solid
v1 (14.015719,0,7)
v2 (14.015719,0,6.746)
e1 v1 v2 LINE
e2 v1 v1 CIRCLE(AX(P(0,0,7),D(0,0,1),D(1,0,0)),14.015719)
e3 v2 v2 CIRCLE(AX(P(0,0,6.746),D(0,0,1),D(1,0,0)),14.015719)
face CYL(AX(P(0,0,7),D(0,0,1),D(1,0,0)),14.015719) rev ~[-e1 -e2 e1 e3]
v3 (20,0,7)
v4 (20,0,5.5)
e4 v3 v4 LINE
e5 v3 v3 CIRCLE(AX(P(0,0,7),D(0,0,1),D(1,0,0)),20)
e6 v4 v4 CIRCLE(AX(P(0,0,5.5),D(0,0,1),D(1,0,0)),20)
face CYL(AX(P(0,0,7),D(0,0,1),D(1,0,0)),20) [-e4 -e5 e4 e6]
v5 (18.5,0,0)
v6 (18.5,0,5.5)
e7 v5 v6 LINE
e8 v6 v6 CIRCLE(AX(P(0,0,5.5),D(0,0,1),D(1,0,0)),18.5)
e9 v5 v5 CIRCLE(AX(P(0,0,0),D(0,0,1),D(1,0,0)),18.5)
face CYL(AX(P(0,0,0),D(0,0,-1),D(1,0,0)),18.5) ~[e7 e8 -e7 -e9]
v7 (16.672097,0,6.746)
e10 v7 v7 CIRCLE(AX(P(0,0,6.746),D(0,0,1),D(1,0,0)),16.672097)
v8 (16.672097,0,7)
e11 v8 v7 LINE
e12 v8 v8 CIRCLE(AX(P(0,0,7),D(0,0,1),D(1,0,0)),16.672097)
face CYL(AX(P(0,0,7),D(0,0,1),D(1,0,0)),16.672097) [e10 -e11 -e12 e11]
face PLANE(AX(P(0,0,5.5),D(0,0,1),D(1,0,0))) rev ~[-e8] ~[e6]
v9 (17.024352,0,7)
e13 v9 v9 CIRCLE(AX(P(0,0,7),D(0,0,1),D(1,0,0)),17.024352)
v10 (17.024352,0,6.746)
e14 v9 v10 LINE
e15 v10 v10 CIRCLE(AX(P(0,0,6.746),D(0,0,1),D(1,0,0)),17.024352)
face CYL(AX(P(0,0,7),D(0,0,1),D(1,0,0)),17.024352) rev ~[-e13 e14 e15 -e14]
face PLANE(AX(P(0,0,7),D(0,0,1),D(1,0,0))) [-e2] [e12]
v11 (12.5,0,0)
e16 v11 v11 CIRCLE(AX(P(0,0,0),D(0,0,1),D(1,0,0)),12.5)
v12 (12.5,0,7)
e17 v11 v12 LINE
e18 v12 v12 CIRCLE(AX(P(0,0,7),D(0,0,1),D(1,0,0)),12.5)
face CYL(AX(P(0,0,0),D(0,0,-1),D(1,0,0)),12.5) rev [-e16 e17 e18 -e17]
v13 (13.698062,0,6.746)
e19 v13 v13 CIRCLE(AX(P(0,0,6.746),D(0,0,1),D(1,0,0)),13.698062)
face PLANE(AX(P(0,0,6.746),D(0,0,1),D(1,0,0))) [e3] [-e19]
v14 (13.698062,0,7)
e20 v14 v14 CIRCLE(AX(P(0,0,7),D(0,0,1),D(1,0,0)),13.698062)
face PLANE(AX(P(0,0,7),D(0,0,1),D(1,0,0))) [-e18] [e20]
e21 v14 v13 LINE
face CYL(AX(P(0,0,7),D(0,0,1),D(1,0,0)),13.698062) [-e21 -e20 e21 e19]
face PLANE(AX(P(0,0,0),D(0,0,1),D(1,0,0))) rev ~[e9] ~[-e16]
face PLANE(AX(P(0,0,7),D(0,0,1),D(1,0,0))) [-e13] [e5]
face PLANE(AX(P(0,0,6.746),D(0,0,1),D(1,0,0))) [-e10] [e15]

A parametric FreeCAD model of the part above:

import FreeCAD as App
import Part
import Sketcher
from FreeCAD import Vector

doc = App.newDocument("Part")
body = doc.addObject("PartDesign::Body", "Body")

sketch1 = body.newObject("Sketcher::SketchObject", "Sketch")
sketch1.AttachmentSupport = (doc.getObject("XY_Plane"), [""])
sketch1.MapMode = "FlatFace"
sketch1.addGeometry(Part.Circle(Vector(0, 0, 0), Vector(0, 0, 1), 18), False)
sketch1.addGeometry(Part.Circle(Vector(0, 0, 0), Vector(0, 0, 1), 12), False)
sketch1.addConstraint(Sketcher.Constraint("Coincident", 0, 3, -1, 1))
sketch1.addConstraint(Sketcher.Constraint("Coincident", 1, 3, -1, 1))
sketch1.addConstraint(Sketcher.Constraint("Diameter", 0, 37.0))
sketch1.addConstraint(Sketcher.Constraint("Diameter", 1, 25.0))
pad1 = body.newObject("PartDesign::Pad", "Pad")
pad1.Profile = sketch1
pad1.Length = 7

sketch2 = body.newObject("Sketcher::SketchObject", "Sketch001")
sketch2.AttachmentSupport = (doc.getObject("XY_Plane"), [""])
sketch2.MapMode = "FlatFace"
sketch2.AttachmentOffset = App.Placement(Vector(0, 0, 7), App.Rotation())
sketch2.addGeometry(Part.Circle(Vector(0, 0, 0), Vector(0, 0, 1), 14), False)
sketch2.addGeometry(Part.Circle(Vector(0, 0, 0), Vector(0, 0, 1), 14), False)
sketch2.addConstraint(Sketcher.Constraint("Coincident", 0, 3, -1, 1))
sketch2.addConstraint(Sketcher.Constraint("Coincident", 1, 3, -1, 1))
sketch2.addConstraint(Sketcher.Constraint("Diameter", 0, 28.031438))
sketch2.addConstraint(Sketcher.Constraint("Diameter", 1, 27.396124))
pocket1 = body.newObject("PartDesign::Pocket", "Pocket")
pocket1.Profile = sketch2
pocket1.Length = 0.254

sketch3 = body.newObject("Sketcher::SketchObject", "Sketch002")
sketch3.AttachmentSupport = (doc.getObject("XY_Plane"), [""])
sketch3.MapMode = "FlatFace"
sketch3.AttachmentOffset = App.Placement(Vector(0, 0, 7), App.Rotation())
sketch3.addGeometry(Part.Circle(Vector(0, 0, 0), Vector(0, 0, 1), 17), False)
sketch3.addGeometry(Part.Circle(Vector(0, 0, 0), Vector(0, 0, 1), 17), False)
sketch3.addConstraint(Sketcher.Constraint("Coincident", 0, 3, -1, 1))
sketch3.addConstraint(Sketcher.Constraint("Coincident", 1, 3, -1, 1))
sketch3.addConstraint(Sketcher.Constraint("Diameter", 0, 34.048704))
sketch3.addConstraint(Sketcher.Constraint("Diameter", 1, 33.344194))
pocket2 = body.newObject("PartDesign::Pocket", "Pocket001")
pocket2.Profile = sketch3
pocket2.Length = 0.254

sketch4 = body.newObject("Sketcher::SketchObject", "Sketch003")
sketch4.AttachmentSupport = (doc.getObject("XY_Plane"), [""])
sketch4.MapMode = "FlatFace"
sketch4.AttachmentOffset = App.Placement(Vector(0, 0, 7), App.Rotation())
sketch4.addGeometry(Part.Circle(Vector(0, 0, 0), Vector(0, 0, 1), 20), False)
sketch4.addGeometry(Part.Circle(Vector(0, 0, 0), Vector(0, 0, 1), 18), False)
sketch4.addConstraint(Sketcher.Constraint("Coincident", 0, 3, -1, 1))
sketch4.addConstraint(Sketcher.Constraint("Coincident", 1, 3, -1, 1))
sketch4.addConstraint(Sketcher.Constraint("Diameter", 0, 40.0))
sketch4.addConstraint(Sketcher.Constraint("Diameter", 1, 37.0))
pad2 = body.newObject("PartDesign::Pad", "Pad001")
pad2.Profile = sketch4
pad2.Length = 1.5
pad2.Reversed = True

doc.recompute()
